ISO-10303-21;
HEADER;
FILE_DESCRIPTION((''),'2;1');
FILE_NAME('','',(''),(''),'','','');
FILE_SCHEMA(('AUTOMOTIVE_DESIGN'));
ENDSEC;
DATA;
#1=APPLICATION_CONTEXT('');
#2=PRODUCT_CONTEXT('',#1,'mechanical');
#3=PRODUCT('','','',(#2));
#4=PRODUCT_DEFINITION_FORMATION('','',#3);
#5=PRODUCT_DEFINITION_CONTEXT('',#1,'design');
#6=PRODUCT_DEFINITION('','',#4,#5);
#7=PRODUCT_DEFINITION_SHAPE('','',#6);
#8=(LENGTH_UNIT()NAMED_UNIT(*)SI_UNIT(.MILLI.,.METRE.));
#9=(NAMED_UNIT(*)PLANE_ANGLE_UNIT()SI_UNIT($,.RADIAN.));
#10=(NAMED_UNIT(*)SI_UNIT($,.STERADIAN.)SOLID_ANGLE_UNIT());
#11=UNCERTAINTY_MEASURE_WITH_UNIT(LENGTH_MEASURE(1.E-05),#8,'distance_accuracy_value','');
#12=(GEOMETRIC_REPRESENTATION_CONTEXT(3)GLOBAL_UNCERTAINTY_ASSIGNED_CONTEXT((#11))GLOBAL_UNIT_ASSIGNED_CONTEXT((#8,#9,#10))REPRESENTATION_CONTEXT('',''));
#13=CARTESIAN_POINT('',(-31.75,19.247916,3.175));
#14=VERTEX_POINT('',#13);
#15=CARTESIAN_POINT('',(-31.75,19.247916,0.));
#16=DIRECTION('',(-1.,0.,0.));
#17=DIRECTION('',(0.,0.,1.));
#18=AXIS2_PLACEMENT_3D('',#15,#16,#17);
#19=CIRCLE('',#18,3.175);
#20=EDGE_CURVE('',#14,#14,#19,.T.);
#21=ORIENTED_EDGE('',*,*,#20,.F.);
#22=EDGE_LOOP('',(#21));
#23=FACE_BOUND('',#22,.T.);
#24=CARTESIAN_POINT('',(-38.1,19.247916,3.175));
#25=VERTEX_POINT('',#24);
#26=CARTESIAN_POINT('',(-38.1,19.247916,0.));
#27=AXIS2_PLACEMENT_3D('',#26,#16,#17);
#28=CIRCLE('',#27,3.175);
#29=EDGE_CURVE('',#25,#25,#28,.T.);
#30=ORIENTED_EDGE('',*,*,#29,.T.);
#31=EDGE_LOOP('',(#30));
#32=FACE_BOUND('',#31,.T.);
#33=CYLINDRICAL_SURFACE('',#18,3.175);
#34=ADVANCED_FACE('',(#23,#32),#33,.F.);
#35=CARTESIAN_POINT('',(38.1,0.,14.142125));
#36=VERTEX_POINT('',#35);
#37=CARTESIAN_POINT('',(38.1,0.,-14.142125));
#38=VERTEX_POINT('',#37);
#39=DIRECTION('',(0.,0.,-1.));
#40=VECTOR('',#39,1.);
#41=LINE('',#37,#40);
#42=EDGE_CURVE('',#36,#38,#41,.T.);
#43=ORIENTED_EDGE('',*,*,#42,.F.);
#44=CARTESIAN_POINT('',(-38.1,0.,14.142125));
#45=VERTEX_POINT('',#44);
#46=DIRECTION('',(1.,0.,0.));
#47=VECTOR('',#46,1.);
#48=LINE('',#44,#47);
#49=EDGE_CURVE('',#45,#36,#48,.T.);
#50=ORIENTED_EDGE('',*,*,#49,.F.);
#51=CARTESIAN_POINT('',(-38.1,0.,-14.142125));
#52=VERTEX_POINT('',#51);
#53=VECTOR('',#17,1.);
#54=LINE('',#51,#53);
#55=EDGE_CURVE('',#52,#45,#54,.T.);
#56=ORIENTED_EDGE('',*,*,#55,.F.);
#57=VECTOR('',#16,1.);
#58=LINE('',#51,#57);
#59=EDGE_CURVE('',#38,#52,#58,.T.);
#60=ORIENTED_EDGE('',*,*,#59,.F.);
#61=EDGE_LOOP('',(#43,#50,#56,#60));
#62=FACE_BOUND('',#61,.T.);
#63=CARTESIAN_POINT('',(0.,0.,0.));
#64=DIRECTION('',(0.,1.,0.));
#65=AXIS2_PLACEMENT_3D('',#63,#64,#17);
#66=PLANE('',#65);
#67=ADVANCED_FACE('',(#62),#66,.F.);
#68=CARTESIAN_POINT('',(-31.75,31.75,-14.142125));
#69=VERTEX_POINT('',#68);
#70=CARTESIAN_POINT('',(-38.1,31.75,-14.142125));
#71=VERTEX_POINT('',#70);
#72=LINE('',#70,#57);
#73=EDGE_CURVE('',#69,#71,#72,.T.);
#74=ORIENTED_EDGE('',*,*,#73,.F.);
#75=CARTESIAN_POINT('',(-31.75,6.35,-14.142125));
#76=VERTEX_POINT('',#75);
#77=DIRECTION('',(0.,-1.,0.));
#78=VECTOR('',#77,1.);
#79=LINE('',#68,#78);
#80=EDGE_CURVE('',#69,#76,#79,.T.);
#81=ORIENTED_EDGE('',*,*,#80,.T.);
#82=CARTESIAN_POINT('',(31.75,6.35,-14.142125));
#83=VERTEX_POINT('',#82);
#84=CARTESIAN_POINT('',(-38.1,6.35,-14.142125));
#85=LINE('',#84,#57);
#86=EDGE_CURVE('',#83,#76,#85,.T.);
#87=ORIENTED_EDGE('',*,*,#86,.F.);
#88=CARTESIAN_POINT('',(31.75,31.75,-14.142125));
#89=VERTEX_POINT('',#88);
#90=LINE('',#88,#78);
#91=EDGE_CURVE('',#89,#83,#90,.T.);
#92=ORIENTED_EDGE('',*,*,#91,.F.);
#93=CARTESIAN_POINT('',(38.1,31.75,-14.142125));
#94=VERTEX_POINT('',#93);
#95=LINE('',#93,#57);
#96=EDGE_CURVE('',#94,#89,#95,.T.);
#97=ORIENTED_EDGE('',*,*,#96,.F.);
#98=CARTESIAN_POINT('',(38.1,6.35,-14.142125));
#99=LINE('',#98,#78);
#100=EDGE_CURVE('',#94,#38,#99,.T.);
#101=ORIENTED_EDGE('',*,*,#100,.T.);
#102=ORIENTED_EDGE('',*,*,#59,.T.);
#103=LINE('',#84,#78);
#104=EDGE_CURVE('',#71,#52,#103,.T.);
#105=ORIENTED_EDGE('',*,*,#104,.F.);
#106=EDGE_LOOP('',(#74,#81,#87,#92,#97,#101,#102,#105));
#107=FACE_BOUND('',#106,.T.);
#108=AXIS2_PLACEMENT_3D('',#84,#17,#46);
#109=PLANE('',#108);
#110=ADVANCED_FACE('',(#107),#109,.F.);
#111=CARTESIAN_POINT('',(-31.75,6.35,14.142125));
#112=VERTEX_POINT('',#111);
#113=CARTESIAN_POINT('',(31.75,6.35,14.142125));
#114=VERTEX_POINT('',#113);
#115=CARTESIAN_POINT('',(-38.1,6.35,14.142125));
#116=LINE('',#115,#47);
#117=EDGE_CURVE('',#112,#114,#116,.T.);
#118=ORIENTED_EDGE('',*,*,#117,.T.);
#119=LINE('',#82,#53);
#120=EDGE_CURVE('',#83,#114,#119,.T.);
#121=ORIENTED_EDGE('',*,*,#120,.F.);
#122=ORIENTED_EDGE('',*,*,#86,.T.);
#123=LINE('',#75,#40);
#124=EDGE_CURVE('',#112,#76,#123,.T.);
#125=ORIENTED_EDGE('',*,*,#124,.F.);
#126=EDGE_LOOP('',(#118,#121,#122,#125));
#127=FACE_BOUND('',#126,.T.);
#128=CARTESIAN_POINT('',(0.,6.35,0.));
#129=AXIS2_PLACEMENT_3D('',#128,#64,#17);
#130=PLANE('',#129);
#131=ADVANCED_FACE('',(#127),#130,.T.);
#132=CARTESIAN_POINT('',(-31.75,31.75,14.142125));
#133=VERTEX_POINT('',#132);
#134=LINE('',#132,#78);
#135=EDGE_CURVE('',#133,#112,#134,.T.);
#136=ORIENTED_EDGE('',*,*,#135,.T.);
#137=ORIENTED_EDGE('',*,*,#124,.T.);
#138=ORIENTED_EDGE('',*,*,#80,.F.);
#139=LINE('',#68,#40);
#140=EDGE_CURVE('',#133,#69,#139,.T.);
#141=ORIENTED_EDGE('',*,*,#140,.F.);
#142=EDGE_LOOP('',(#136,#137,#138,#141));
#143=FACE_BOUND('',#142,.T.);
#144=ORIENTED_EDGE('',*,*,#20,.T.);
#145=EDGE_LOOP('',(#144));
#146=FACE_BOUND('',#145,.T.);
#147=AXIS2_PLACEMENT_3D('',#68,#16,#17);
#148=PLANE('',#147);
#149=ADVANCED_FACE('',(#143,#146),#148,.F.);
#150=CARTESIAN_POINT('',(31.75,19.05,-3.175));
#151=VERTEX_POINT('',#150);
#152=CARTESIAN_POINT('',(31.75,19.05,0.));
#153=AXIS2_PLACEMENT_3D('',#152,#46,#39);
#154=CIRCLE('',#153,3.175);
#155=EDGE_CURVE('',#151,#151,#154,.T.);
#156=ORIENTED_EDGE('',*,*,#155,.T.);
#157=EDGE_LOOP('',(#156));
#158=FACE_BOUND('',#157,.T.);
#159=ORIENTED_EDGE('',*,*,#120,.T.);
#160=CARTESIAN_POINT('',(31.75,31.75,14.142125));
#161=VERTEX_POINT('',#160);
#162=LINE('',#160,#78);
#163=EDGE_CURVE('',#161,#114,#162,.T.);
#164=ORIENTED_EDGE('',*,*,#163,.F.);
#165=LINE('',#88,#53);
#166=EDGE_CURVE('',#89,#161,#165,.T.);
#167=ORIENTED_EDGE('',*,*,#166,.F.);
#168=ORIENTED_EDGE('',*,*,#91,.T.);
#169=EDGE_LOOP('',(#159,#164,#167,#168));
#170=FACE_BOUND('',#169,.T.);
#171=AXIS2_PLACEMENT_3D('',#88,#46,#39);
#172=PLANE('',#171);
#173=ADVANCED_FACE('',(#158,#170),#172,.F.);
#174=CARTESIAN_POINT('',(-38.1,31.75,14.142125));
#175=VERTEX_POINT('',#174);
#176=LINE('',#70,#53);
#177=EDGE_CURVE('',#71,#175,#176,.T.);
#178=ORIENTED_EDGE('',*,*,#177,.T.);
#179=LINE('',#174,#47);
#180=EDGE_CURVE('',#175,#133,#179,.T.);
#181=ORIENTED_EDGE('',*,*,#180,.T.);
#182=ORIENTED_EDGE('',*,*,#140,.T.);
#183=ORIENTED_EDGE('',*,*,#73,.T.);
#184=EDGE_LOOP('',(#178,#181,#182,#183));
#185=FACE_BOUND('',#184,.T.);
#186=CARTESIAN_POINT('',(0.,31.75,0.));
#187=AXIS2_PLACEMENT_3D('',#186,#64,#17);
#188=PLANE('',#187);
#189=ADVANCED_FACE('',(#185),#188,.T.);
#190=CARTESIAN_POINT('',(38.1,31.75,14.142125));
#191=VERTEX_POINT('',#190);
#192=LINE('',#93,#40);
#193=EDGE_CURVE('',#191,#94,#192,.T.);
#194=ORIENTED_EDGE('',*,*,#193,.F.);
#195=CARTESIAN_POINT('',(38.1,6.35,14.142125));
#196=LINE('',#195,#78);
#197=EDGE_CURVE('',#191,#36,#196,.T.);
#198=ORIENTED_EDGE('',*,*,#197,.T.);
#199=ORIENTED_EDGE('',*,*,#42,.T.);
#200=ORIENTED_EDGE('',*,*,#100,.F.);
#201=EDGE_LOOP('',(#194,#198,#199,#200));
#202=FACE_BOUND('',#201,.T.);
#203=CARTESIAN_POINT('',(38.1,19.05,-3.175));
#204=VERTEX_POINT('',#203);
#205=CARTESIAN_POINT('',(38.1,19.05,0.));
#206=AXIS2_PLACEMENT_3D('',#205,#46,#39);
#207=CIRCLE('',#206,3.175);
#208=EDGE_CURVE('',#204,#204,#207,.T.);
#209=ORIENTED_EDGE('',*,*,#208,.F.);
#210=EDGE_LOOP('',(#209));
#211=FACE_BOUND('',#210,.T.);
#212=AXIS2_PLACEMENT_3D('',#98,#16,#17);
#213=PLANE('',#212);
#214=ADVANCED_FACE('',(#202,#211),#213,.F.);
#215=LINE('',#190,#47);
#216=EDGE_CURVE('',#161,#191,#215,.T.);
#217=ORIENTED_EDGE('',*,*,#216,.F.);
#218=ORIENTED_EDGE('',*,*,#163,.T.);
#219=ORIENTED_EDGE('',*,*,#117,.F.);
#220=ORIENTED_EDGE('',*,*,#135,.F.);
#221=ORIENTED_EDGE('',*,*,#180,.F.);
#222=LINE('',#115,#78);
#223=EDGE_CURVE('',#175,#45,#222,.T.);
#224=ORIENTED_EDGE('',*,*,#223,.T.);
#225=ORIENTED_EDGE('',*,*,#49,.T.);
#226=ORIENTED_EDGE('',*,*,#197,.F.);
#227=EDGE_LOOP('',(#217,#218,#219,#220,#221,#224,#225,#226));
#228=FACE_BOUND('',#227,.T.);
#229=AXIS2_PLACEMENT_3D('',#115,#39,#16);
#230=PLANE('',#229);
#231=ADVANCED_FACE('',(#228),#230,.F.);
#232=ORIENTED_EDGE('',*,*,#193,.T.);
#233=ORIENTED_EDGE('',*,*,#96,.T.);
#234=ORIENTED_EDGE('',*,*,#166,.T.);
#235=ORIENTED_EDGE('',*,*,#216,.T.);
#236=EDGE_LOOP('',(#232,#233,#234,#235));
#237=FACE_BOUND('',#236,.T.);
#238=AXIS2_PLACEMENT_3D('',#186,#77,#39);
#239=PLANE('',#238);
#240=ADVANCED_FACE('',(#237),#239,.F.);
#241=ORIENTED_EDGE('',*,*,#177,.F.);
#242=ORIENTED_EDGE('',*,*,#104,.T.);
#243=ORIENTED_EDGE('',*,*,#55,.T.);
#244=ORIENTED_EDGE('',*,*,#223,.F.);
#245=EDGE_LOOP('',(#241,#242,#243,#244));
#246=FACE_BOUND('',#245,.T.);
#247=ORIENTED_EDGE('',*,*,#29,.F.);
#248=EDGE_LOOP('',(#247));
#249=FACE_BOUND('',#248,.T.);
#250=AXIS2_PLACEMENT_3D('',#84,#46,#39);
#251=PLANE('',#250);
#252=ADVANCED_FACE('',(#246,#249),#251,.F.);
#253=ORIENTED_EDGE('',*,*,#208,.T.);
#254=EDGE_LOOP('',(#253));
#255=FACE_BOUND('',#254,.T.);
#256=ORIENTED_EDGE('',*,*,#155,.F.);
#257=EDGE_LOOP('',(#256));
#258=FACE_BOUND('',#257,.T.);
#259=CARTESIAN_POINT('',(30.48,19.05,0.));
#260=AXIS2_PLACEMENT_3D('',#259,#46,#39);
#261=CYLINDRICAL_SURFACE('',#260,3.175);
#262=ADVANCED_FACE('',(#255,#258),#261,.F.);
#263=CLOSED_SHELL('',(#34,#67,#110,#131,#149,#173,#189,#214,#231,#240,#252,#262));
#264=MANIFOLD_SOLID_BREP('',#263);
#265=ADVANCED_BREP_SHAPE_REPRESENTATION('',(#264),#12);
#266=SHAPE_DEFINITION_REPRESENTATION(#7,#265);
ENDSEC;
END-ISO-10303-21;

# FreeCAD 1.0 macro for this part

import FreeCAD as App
import Part
import Sketcher

V = App.Vector
Q = App.Units.Quantity

doc = App.newDocument("Part")
body = doc.addObject("PartDesign::Body", "Body")

# Sketch on XZ plane
sketch1 = body.newObject("Sketcher::SketchObject", "Sketch")
sketch1.AttachmentSupport = (doc.getObject("XZ_Plane"), [""])
sketch1.MapMode = "FlatFace"
sketch1.addGeometry([
    Part.LineSegment(V(-38.1, -14.142125, 0), V(-38.1, 14.142125, 0)),
    Part.LineSegment(V(-38.1, 14.142125, 0), V(38.1, 14.142125, 0)),
    Part.LineSegment(V(38.1, 14.142125, 0), V(38.1, -14.142125, 0)),
    Part.LineSegment(V(38.1, -14.142125, 0), V(-38.1, -14.142125, 0)),
], False)
sketch1.addConstraint([
    Sketcher.Constraint("Coincident", 0, 2, 1, 1),
    Sketcher.Constraint("Coincident", 1, 2, 2, 1),
    Sketcher.Constraint("Coincident", 2, 2, 3, 1),
    Sketcher.Constraint("Coincident", 3, 2, 0, 1),
    Sketcher.Constraint("Vertical", 0),
    Sketcher.Constraint("Horizontal", 1),
    Sketcher.Constraint("Vertical", 2),
    Sketcher.Constraint("Horizontal", 3),
    Sketcher.Constraint("Symmetric", 0, 2, 2, 2, -1, 1),
    Sketcher.Constraint("DistanceX", 1, 1, 1, 2, Q("3 in")),
    Sketcher.Constraint("DistanceY", 0, 1, 0, 2, Q("28.284249 mm")),
])
pad1 = body.newObject("PartDesign::Pad", "Pad")
pad1.Profile = sketch1
pad1.Length = Q("0.25 in")
pad1.Reversed = True

# Sketch on XZ plane
sketch2 = body.newObject("Sketcher::SketchObject", "Sketch001")
sketch2.AttachmentSupport = (doc.getObject("XZ_Plane"), [""])
sketch2.MapMode = "FlatFace"
sketch2.AttachmentOffset = App.Placement(V(0, 0, -0.25 * 25.4), App.Rotation())
sketch2.addGeometry([
    Part.LineSegment(V(-38.1, -14.142125, 0), V(-38.1, 14.142125, 0)),  # 0
    Part.LineSegment(V(-38.1, 14.142125, 0), V(-31.75, 14.142125, 0)),  # 1
    Part.LineSegment(V(-31.75, 14.142125, 0), V(-31.75, -14.142125, 0)),  # 2
    Part.LineSegment(V(-31.75, -14.142125, 0), V(-38.1, -14.142125, 0)),  # 3
    Part.LineSegment(V(31.75, -14.142125, 0), V(31.75, 14.142125, 0)),  # 4
    Part.LineSegment(V(31.75, 14.142125, 0), V(38.1, 14.142125, 0)),  # 5
    Part.LineSegment(V(38.1, 14.142125, 0), V(38.1, -14.142125, 0)),  # 6
    Part.LineSegment(V(38.1, -14.142125, 0), V(31.75, -14.142125, 0)),  # 7
], False)
sketch2.addConstraint([
    Sketcher.Constraint("Coincident", 0, 2, 1, 1),
    Sketcher.Constraint("Coincident", 1, 2, 2, 1),
    Sketcher.Constraint("Coincident", 2, 2, 3, 1),
    Sketcher.Constraint("Coincident", 3, 2, 0, 1),
    Sketcher.Constraint("Coincident", 4, 2, 5, 1),
    Sketcher.Constraint("Coincident", 5, 2, 6, 1),
    Sketcher.Constraint("Coincident", 6, 2, 7, 1),
    Sketcher.Constraint("Coincident", 7, 2, 4, 1),
    Sketcher.Constraint("Vertical", 0),
    Sketcher.Constraint("Horizontal", 1),
    Sketcher.Constraint("Vertical", 2),
    Sketcher.Constraint("Horizontal", 3),
    Sketcher.Constraint("Vertical", 4),
    Sketcher.Constraint("Horizontal", 5),
    Sketcher.Constraint("Vertical", 6),
    Sketcher.Constraint("Horizontal", 7),
    Sketcher.Constraint("Symmetric", 2, 2, 4, 2, -1, 1),
    Sketcher.Constraint("Symmetric", 0, 2, 6, 2, -1, 1),
    Sketcher.Constraint("Horizontal", 1, 2, 4, 2),
    Sketcher.Constraint("DistanceX", 0, 2, 5, 2, Q("3 in")),
    Sketcher.Constraint("DistanceX", 1, 1, 1, 2, Q("0.25 in")),
    Sketcher.Constraint("DistanceY", 0, 1, 0, 2, Q("28.284249 mm")),
])
pad2 = body.newObject("PartDesign::Pad", "Pad001")
pad2.Profile = sketch2
pad2.Length = Q("1 in")
pad2.Reversed = True

# Sketch on YZ plane
sketch3 = body.newObject("Sketcher::SketchObject", "Sketch002")
sketch3.AttachmentSupport = (doc.getObject("YZ_Plane"), [""])
sketch3.MapMode = "FlatFace"
sketch3.AttachmentOffset = App.Placement(V(0, 0, -1.5 * 25.4), App.Rotation())
sketch3.addGeometry(Part.Circle(V(19.247916, 0, 0), V(0, 0, 1), 3.175), False)
sketch3.addConstraint([
    Sketcher.Constraint("PointOnObject", 0, 3, -1),
    Sketcher.Constraint("Diameter", 0, Q("0.25 in")),
    Sketcher.Constraint("DistanceX", -1, 1, 0, 3, Q("19.247916 mm")),
])
pocket1 = body.newObject("PartDesign::Pocket", "Pocket")
pocket1.Profile = sketch3
pocket1.Length = Q("0.25 in")
pocket1.Reversed = True

# Sketch on YZ plane
sketch4 = body.newObject("Sketcher::SketchObject", "Sketch003")
sketch4.AttachmentSupport = (doc.getObject("YZ_Plane"), [""])
sketch4.MapMode = "FlatFace"
sketch4.AttachmentOffset = App.Placement(V(0, 0, 1.5 * 25.4), App.Rotation())
sketch4.addGeometry(Part.Circle(V(19.05, 0, 0), V(0, 0, 1), 3.175), False)
sketch4.addConstraint([
    Sketcher.Constraint("PointOnObject", 0, 3, -1),
    Sketcher.Constraint("Diameter", 0, Q("0.25 in")),
    Sketcher.Constraint("DistanceX", -1, 1, 0, 3, Q("0.75 in")),
])
pocket2 = body.newObject("PartDesign::Pocket", "Pocket001")
pocket2.Profile = sketch4
pocket2.Length = Q("0.3 in")

doc.recompute()
